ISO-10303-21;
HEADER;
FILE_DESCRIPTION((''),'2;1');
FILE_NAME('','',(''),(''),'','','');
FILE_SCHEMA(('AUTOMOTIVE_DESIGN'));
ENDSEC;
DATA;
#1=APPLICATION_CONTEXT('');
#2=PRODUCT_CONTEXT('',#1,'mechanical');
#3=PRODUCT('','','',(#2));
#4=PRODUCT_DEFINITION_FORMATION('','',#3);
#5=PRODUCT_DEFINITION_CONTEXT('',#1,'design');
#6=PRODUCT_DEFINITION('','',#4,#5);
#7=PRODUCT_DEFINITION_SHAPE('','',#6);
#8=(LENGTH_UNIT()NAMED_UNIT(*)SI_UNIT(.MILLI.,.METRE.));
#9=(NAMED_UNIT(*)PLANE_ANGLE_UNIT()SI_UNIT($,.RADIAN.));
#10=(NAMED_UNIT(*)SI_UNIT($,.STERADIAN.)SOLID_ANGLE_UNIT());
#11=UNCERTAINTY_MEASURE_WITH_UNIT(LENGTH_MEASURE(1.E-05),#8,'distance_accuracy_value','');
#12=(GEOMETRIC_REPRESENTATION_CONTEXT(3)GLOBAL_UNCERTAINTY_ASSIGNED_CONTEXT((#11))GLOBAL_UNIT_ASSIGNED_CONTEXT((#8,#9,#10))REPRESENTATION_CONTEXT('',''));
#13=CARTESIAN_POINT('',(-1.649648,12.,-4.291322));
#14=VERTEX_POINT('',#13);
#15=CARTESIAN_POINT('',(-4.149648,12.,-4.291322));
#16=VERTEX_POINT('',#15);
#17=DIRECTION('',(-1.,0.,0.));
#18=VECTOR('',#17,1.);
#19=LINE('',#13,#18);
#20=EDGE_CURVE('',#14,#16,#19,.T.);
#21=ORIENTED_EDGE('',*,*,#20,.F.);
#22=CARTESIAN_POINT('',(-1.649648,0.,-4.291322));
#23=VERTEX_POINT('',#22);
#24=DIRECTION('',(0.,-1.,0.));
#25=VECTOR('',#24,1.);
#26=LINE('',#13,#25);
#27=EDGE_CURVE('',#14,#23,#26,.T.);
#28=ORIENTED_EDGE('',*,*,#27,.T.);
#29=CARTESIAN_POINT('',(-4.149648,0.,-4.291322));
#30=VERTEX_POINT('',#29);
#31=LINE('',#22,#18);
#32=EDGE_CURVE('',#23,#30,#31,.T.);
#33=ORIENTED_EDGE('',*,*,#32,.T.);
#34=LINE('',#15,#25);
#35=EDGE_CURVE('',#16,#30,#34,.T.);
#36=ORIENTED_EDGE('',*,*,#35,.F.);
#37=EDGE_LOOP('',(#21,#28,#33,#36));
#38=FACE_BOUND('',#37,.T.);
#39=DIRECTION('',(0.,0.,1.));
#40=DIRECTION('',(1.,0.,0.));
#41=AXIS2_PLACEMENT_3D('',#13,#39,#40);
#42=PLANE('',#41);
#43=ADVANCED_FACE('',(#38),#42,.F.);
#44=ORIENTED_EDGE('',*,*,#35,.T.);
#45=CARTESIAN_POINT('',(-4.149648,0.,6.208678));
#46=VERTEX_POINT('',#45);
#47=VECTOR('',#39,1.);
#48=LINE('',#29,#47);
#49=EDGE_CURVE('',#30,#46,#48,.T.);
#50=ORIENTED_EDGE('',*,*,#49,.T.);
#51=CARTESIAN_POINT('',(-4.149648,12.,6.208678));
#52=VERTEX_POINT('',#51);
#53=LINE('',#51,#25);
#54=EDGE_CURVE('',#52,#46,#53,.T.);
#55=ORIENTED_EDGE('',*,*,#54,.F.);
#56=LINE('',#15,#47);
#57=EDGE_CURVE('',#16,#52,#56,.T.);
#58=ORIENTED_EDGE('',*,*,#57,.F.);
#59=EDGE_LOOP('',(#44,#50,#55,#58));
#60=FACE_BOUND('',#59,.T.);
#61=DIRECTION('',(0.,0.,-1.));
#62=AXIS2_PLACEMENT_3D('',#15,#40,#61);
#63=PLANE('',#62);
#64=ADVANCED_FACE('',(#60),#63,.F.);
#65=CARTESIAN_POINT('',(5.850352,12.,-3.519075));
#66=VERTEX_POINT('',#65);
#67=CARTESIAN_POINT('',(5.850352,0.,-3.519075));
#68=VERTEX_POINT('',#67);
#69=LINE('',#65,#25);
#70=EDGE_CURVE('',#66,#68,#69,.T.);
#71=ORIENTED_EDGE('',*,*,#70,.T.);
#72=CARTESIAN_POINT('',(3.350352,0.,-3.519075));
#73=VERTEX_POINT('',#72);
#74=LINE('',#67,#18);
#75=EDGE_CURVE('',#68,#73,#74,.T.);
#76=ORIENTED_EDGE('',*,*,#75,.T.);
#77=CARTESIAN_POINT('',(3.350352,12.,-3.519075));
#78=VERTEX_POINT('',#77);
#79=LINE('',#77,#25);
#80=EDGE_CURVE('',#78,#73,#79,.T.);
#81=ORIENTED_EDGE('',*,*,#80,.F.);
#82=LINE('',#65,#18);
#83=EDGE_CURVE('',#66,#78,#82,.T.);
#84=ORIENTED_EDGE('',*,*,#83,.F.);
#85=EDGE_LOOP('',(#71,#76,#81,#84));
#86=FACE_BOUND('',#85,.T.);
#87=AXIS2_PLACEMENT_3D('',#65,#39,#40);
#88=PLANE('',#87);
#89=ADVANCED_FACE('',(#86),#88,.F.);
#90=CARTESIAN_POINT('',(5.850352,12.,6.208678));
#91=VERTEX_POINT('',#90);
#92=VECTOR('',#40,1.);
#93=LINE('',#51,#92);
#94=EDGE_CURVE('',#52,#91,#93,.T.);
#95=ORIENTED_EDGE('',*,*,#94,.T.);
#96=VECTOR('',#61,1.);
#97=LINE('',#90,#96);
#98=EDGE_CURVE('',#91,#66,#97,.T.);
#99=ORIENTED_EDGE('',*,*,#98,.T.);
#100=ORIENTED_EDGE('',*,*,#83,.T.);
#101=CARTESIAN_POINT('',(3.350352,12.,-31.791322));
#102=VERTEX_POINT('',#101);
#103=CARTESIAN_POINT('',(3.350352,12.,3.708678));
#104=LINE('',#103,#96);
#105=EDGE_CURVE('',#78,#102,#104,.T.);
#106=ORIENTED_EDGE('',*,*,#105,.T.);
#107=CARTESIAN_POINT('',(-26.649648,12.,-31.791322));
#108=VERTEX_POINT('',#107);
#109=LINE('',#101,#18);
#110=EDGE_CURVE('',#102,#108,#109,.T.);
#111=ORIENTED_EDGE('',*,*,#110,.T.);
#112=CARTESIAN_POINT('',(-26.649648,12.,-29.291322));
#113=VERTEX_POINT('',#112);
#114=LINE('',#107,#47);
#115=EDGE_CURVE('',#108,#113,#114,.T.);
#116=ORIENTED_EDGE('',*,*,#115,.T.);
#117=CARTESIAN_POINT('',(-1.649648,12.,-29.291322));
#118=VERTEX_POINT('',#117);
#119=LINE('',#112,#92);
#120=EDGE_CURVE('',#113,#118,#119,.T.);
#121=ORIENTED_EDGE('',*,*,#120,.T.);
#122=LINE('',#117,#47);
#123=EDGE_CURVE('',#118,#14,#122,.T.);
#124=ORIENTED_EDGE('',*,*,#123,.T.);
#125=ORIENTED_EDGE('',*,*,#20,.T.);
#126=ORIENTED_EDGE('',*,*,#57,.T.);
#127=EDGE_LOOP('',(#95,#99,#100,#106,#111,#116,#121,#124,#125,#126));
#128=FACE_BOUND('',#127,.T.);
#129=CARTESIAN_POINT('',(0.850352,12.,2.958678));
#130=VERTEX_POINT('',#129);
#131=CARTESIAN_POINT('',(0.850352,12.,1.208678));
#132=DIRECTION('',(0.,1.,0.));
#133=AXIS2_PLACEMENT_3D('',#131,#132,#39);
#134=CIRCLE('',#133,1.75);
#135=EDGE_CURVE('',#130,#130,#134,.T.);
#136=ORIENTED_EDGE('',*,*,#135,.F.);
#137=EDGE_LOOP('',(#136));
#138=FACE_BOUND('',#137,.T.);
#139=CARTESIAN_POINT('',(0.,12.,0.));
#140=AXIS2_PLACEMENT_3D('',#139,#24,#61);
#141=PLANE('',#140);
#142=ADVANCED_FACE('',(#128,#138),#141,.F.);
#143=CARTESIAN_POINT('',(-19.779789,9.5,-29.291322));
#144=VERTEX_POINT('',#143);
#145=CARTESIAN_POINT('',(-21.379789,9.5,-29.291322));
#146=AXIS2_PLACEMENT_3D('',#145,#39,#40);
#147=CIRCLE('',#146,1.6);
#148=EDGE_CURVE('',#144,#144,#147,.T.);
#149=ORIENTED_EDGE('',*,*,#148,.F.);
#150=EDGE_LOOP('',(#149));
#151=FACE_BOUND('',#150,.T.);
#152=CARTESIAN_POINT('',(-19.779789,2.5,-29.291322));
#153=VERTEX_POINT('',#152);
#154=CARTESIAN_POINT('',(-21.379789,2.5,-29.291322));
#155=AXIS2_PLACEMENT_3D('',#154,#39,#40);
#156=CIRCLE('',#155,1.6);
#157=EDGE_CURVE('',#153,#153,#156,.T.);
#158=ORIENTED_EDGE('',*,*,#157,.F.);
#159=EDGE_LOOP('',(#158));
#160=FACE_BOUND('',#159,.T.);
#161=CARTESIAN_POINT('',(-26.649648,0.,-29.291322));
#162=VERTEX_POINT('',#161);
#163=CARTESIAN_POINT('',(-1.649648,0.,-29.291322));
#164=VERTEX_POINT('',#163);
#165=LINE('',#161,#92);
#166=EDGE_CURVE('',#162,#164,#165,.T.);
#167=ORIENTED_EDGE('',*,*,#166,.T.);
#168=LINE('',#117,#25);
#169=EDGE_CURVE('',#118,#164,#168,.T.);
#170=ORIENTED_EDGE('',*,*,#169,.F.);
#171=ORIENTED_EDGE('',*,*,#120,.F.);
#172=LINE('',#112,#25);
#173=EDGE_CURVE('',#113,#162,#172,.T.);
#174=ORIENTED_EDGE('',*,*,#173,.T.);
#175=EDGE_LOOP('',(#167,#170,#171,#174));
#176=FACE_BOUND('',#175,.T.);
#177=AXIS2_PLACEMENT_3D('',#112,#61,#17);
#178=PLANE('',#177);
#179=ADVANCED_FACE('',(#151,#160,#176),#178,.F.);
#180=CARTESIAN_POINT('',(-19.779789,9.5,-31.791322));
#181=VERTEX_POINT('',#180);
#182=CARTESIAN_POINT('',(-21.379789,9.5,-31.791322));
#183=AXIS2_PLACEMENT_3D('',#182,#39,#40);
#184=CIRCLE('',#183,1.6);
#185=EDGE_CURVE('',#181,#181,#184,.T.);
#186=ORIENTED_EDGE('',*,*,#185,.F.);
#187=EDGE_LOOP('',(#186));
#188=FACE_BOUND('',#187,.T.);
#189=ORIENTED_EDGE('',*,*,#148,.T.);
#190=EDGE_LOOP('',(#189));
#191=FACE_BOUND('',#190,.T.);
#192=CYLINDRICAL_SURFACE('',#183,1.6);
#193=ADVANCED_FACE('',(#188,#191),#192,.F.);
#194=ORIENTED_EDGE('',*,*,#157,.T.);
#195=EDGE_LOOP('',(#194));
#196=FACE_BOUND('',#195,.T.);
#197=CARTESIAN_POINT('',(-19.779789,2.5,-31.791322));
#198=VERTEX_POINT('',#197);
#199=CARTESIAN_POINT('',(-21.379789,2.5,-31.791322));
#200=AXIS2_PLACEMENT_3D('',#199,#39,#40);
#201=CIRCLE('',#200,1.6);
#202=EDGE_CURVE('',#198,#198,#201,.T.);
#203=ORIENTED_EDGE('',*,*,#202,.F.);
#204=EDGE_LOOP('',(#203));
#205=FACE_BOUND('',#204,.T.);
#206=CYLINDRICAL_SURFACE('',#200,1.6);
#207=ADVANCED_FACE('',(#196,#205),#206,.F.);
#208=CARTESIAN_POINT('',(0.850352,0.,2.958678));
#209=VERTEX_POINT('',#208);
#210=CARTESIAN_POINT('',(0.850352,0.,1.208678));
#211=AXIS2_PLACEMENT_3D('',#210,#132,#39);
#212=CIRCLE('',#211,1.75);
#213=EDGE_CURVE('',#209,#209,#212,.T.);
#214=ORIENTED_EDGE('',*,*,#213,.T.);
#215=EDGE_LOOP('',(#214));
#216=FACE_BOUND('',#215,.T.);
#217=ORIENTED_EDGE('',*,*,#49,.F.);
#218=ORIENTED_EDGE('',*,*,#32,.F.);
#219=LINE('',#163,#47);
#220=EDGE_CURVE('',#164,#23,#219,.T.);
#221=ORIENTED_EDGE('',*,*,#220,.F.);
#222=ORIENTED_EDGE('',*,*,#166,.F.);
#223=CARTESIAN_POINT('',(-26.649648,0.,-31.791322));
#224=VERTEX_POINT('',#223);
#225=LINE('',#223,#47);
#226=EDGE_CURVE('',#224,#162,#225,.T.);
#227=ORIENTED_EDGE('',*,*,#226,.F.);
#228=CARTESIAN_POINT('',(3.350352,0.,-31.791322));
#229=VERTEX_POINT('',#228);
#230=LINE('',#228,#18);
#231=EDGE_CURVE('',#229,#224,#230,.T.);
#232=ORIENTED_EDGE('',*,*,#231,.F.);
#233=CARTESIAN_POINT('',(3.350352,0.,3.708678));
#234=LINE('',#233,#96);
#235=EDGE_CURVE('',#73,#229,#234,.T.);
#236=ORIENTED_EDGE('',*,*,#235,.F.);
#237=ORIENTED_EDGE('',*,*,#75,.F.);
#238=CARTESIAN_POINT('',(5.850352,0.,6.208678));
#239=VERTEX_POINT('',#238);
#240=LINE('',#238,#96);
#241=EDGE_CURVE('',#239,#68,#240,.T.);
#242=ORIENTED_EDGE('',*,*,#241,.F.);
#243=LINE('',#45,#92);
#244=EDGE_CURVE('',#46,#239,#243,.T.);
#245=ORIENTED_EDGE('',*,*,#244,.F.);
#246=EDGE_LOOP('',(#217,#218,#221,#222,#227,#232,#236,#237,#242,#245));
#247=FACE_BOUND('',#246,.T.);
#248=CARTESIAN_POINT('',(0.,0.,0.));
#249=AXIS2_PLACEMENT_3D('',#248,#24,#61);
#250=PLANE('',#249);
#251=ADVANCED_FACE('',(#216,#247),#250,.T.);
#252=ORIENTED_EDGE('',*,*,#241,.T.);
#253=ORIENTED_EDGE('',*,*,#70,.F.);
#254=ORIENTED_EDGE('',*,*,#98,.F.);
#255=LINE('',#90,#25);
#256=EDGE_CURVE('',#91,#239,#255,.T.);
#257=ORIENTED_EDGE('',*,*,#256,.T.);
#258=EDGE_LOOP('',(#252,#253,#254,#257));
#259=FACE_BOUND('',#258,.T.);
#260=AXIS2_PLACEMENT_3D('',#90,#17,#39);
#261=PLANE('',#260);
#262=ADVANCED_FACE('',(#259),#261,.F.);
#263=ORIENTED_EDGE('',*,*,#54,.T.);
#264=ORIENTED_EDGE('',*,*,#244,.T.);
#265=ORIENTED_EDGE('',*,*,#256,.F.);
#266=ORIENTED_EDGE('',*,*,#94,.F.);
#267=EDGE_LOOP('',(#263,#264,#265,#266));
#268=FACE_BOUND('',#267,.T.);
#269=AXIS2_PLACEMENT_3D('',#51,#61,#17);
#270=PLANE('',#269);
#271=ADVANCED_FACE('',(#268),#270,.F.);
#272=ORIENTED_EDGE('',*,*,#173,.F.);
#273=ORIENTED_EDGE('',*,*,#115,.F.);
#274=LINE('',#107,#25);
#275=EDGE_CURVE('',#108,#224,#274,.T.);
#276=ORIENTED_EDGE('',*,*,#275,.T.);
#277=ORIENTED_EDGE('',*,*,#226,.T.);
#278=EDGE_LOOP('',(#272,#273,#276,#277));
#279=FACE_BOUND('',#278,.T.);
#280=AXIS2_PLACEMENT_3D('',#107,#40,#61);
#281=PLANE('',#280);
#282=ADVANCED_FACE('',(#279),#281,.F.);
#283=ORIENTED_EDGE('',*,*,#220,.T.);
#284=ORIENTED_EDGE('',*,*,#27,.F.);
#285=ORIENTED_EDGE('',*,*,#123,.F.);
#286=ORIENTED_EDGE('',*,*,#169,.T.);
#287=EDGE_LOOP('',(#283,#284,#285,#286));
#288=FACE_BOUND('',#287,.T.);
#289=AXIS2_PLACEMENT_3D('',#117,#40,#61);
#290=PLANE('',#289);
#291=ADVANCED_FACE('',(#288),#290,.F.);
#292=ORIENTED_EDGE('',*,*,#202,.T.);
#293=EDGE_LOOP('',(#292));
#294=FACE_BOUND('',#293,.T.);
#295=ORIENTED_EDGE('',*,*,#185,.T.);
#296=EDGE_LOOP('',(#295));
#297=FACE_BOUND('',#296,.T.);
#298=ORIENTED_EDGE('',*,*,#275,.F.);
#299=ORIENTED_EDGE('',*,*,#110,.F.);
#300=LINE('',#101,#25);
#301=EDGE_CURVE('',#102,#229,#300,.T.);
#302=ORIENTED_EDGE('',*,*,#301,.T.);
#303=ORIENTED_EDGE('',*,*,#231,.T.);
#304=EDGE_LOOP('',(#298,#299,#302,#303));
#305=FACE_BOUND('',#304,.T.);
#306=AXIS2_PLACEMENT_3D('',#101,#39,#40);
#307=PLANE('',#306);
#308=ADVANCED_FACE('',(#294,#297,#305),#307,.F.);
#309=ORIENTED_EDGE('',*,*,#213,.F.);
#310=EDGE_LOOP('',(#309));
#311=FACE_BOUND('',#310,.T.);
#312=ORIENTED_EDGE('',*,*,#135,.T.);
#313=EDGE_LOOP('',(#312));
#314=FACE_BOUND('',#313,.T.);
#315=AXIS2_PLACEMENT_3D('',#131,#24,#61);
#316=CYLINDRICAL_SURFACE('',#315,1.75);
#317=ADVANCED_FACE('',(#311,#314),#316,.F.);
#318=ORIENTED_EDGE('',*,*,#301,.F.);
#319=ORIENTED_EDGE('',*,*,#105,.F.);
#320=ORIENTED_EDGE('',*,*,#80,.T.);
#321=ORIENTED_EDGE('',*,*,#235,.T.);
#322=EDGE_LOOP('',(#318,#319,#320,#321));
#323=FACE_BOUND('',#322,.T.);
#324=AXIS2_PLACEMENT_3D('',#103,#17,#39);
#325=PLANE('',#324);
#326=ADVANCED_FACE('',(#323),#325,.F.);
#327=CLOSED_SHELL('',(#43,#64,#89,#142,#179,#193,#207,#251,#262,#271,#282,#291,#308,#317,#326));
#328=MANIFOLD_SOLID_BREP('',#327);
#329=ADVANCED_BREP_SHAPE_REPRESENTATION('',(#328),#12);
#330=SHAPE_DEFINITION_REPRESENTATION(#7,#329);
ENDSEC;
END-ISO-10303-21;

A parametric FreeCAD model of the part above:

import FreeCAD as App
import Part
import Sketcher
from FreeCAD import Vector

doc = App.newDocument("Part")
body = doc.addObject("PartDesign::Body", "Body")

# Sketch on XZ plane
sketch1 = doc.addObject("Sketcher::SketchObject", "Sketch")
body.addObject(sketch1)
sketch1.AttachmentSupport = (doc.XZ_Plane, [""])
sketch1.MapMode = "FlatFace"
sketch1.addGeometry([
    Part.LineSegment(Vector(-1.6, -29.3, 0), Vector(-1.6, 3.7, 0)),  # 0
    Part.LineSegment(Vector(-1.6, 3.7, 0), Vector(3.4, 3.7, 0)),  # 1
    Part.LineSegment(Vector(3.4, 3.7, 0), Vector(3.4, -31.8, 0)),  # 2
    Part.LineSegment(Vector(3.4, -31.8, 0), Vector(-26.6, -31.8, 0)),  # 3
    Part.LineSegment(Vector(-26.6, -31.8, 0), Vector(-26.6, -29.3, 0)),  # 4
    Part.LineSegment(Vector(-26.6, -29.3, 0), Vector(-1.6, -29.3, 0)),  # 5
    Part.Circle(Vector(0.9, 1.2, 0), Vector(0, 0, 1), 1.8),  # 6
], False)
sketch1.addConstraint([
    Sketcher.Constraint("Coincident", 0, 2, 1, 1),
    Sketcher.Constraint("Coincident", 1, 2, 2, 1),
    Sketcher.Constraint("Coincident", 2, 2, 3, 1),
    Sketcher.Constraint("Coincident", 3, 2, 4, 1),
    Sketcher.Constraint("Coincident", 4, 2, 5, 1),
    Sketcher.Constraint("Coincident", 5, 2, 0, 1),
    Sketcher.Constraint("Vertical", 0),
    Sketcher.Constraint("Horizontal", 1),
    Sketcher.Constraint("Vertical", 2),
    Sketcher.Constraint("Horizontal", 3),
    Sketcher.Constraint("Vertical", 4),
    Sketcher.Constraint("Horizontal", 5),
    Sketcher.Constraint("Diameter", 6, 3.5),
    Sketcher.Constraint("DistanceX", 1, 1, 1, 2, 5.0),
    Sketcher.Constraint("DistanceX", 3, 2, 3, 1, 30.0),
    Sketcher.Constraint("DistanceY", 0, 1, 0, 2, 33.0),
    Sketcher.Constraint("DistanceY", 2, 2, 2, 1, 35.5),
    Sketcher.Constraint("DistanceY", 2, 2, 6, 3, 33.0),
    Sketcher.Constraint("DistanceX", 0, 2, 6, 3, 2.5),
    Sketcher.Constraint("DistanceX", -1, 1, 6, 3, 0.850352),
    Sketcher.Constraint("DistanceY", -1, 1, 6, 3, 1.208678),
])
pad1 = doc.addObject("PartDesign::Pad", "Pad")
body.addObject(pad1)
pad1.Profile = sketch1
pad1.Length = 12
pad1.Reversed = True

# Sketch on XY plane
sketch2 = doc.addObject("Sketcher::SketchObject", "Sketch001")
body.addObject(sketch2)
sketch2.AttachmentSupport = (doc.XY_Plane, [""])
sketch2.MapMode = "FlatFace"
sketch2.AttachmentOffset = App.Placement(Vector(0, 0, -29.291322), App.Rotation())
sketch2.addGeometry([
    Part.Circle(Vector(-21.4, 2.5, 0), Vector(0, 0, 1), 1.6),
    Part.Circle(Vector(-21.4, 9.5, 0), Vector(0, 0, 1), 1.6),
], False)
sketch2.addConstraint([
    Sketcher.Constraint("Equal", 0, 1),
    Sketcher.Constraint("Vertical", 0, 3, 1, 3),
    Sketcher.Constraint("Diameter", 0, 3.2),
    Sketcher.Constraint("DistanceY", 0, 3, 1, 3, 7.0),
    Sketcher.Constraint("DistanceY", -1, 1, 0, 3, 2.5),
    Sketcher.Constraint("DistanceX", 0, 3, -1, 1, 21.379789),
])
pocket1 = doc.addObject("PartDesign::Pocket", "Pocket")
body.addObject(pocket1)
pocket1.Profile = sketch2
pocket1.Type = "ThroughAll"

# Sketch on XZ plane
sketch3 = doc.addObject("Sketcher::SketchObject", "Sketch002")
body.addObject(sketch3)
sketch3.AttachmentSupport = (doc.XZ_Plane, [""])
sketch3.MapMode = "FlatFace"
sketch3.addGeometry([
    Part.LineSegment(Vector(-1.6, -4.3, 0), Vector(-4.1, -4.3, 0)),  # 0
    Part.LineSegment(Vector(-4.1, -4.3, 0), Vector(-4.1, 6.2, 0)),  # 1
    Part.LineSegment(Vector(-4.1, 6.2, 0), Vector(5.9, 6.2, 0)),  # 2
    Part.LineSegment(Vector(5.9, 6.2, 0), Vector(5.9, -3.5, 0)),  # 3
    Part.LineSegment(Vector(5.9, -3.5, 0), Vector(3.4, -3.5, 0)),  # 4
    Part.LineSegment(Vector(3.4, -3.5, 0), Vector(3.4, 3.7, 0)),  # 5
    Part.LineSegment(Vector(3.4, 3.7, 0), Vector(-1.6, 3.7, 0)),  # 6
    Part.LineSegment(Vector(-1.6, 3.7, 0), Vector(-1.6, -4.3, 0)),  # 7
], False)
sketch3.addConstraint([
    Sketcher.Constraint("Coincident", 0, 2, 1, 1),
    Sketcher.Constraint("Coincident", 1, 2, 2, 1),
    Sketcher.Constraint("Coincident", 2, 2, 3, 1),
    Sketcher.Constraint("Coincident", 3, 2, 4, 1),
    Sketcher.Constraint("Coincident", 4, 2, 5, 1),
    Sketcher.Constraint("Coincident", 5, 2, 6, 1),
    Sketcher.Constraint("Coincident", 6, 2, 7, 1),
    Sketcher.Constraint("Coincident", 7, 2, 0, 1),
    Sketcher.Constraint("Horizontal", 0),
    Sketcher.Constraint("Vertical", 1),
    Sketcher.Constraint("Horizontal", 2),
    Sketcher.Constraint("Vertical", 3),
    Sketcher.Constraint("Horizontal", 4),
    Sketcher.Constraint("Vertical", 5),
    Sketcher.Constraint("Horizontal", 6),
    Sketcher.Constraint("Vertical", 7),
    Sketcher.Constraint("Equal", 0, 4),
    Sketcher.Constraint("DistanceX", 2, 1, 2, 2, 10.0),
    Sketcher.Constraint("DistanceX", 6, 2, 6, 1, 5.0),
    Sketcher.Constraint("DistanceY", 7, 2, 7, 1, 8.0),
    Sketcher.Constraint("DistanceY", 1, 1, 1, 2, 10.5),
    Sketcher.Constraint("DistanceY", 3, 2, 3, 1, 9.727752),
    Sketcher.Constraint("DistanceX", 0, 2, -1, 1, 4.149648),
    Sketcher.Constraint("DistanceY", 0, 2, -1, 1, 4.291322),
])
pad2 = doc.addObject("PartDesign::Pad", "Pad001")
body.addObject(pad2)
pad2.Profile = sketch3
pad2.Length = 12
pad2.Reversed = True

doc.recompute()
